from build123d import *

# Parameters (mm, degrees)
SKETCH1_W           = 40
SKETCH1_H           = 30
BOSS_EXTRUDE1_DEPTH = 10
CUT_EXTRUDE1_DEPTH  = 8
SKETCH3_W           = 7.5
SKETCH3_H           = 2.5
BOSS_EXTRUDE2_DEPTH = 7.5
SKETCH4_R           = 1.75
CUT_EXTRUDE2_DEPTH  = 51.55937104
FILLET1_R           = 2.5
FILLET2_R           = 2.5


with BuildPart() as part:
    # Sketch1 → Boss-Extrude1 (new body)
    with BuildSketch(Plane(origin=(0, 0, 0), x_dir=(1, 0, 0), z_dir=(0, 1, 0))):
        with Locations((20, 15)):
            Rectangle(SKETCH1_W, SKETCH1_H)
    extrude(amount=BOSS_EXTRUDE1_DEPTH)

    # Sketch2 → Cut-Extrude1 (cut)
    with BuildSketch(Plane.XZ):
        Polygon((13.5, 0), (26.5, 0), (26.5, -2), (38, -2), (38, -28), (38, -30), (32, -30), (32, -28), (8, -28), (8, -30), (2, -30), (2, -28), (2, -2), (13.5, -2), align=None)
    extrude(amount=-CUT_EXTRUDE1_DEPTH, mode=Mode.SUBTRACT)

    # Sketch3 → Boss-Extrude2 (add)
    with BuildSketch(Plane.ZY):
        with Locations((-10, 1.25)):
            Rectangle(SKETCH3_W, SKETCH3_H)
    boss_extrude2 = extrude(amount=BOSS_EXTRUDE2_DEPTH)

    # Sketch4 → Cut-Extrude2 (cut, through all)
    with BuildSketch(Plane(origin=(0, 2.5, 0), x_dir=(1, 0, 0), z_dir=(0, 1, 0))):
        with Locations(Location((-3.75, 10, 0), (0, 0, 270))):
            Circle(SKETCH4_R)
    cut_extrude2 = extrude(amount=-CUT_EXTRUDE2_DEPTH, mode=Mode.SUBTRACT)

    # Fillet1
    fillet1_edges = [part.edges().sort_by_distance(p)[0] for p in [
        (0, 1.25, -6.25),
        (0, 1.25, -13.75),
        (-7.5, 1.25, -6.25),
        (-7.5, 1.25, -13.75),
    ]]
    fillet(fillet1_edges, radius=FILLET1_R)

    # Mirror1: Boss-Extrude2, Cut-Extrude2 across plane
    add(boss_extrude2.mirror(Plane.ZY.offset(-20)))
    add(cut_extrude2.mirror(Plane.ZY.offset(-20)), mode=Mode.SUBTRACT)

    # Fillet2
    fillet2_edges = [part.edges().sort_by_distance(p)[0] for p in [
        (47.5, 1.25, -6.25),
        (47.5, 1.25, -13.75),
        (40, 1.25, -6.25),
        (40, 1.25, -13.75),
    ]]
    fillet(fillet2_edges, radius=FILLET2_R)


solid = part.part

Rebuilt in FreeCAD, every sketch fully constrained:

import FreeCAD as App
import Part
import Sketcher

V = App.Vector
Q = App.Units.Quantity


def edges_at(feature, points):
    """Names of the edges that pass closest to the given points."""
    edges = feature.Shape.Edges
    near = lambda p: min(range(len(edges)), key=lambda i: edges[i].distToShape(Part.Vertex(*p))[0])
    return sorted({f"Edge{near(p) + 1}" for p in points})


def add_polygon(sketch, points):
    """Adds a closed chain of lines whose ends are joined by coincident constraints."""
    first, n = sketch.GeometryCount, len(points)
    for a, b in zip(points, points[1:] + points[:1]):
        sketch.addGeometry(Part.LineSegment(App.Vector(*a, 0), App.Vector(*b, 0)), False)
    for i in range(n):
        sketch.addConstraint(Sketcher.Constraint("Coincident", first + i, 2, first + (i + 1) % n, 1))

doc = App.newDocument("Part")
body = doc.addObject("PartDesign::Body", "Body")

# Sketch on XZ plane
sketch1 = body.newObject("Sketcher::SketchObject", "Sketch")
sketch1.AttachmentSupport = (doc.getObject("XZ_Plane"), [""])
sketch1.MapMode = "FlatFace"
add_polygon(sketch1, [(0, -30), (0, 0), (40, 0), (40, -30)])  # lines 0-3
sketch1.addConstraint([
    Sketcher.Constraint("Vertical", 0),
    Sketcher.Constraint("Horizontal", 1),
    Sketcher.Constraint("Vertical", 2),
    Sketcher.Constraint("Horizontal", 3),
    Sketcher.Constraint("Coincident", 0, 2, -1, 1),
    Sketcher.Constraint("DistanceX", 1, 1, 1, 2, Q("40 mm")),
    Sketcher.Constraint("DistanceY", 0, 1, 0, 2, Q("30 mm")),
])
pad1 = body.newObject("PartDesign::Pad", "Pad")
pad1.Profile = sketch1
pad1.Length = 10
pad1.Reversed = True

# Sketch on XZ plane
sketch2 = body.newObject("Sketcher::SketchObject", "Sketch001")
sketch2.AttachmentSupport = (doc.getObject("XZ_Plane"), [""])
sketch2.MapMode = "FlatFace"
add_polygon(sketch2, [(26.5, 0), (13.5, 0), (13.5, -2), (2, -2), (2, -30), (8, -30), (8, -28), (32, -28), (32, -30), (38, -30), (38, -2), (26.5, -2)])  # lines 0-11
sketch2.addConstraint([
    Sketcher.Constraint("Horizontal", 0),
    Sketcher.Constraint("Vertical", 1),
    Sketcher.Constraint("Horizontal", 2),
    Sketcher.Constraint("Vertical", 3),
    Sketcher.Constraint("Horizontal", 4),
    Sketcher.Constraint("Vertical", 5),
    Sketcher.Constraint("Horizontal", 6),
    Sketcher.Constraint("Vertical", 7),
    Sketcher.Constraint("Horizontal", 8),
    Sketcher.Constraint("Vertical", 9),
    Sketcher.Constraint("Horizontal", 10),
    Sketcher.Constraint("Vertical", 11),
    Sketcher.Constraint("PointOnObject", 0, 2, -1),
    Sketcher.Constraint("Horizontal", 4, 2, 7, 2),
    Sketcher.Constraint("Horizontal", 2, 2, 9, 2),
    Sketcher.Constraint("Equal", 4, 8),
    Sketcher.Constraint("Equal", 2, 10),
    Sketcher.Constraint("Equal", 1, 5),
    Sketcher.Constraint("DistanceX", 0, 2, 0, 1, Q("13 mm")),
    Sketcher.Constraint("DistanceX", 4, 1, 4, 2, Q("6 mm")),
    Sketcher.Constraint("DistanceX", 6, 1, 6, 2, Q("24 mm")),
    Sketcher.Constraint("DistanceY", 1, 2, 1, 1, Q("2 mm")),
    Sketcher.Constraint("DistanceY", 3, 2, 3, 1, Q("28 mm")),
    Sketcher.Constraint("DistanceX", -1, 1, 2, 2, Q("2 mm")),
])
pocket1 = body.newObject("PartDesign::Pocket", "Pocket")
pocket1.Profile = sketch2
pocket1.Length = 8

# Sketch on YZ plane
sketch3 = body.newObject("Sketcher::SketchObject", "Sketch002")
sketch3.AttachmentSupport = (doc.getObject("YZ_Plane"), [""])
sketch3.MapMode = "FlatFace"
add_polygon(sketch3, [(2.5, -13.75), (0, -13.75), (0, -6.25), (2.5, -6.25)])  # lines 0-3
sketch3.addConstraint([
    Sketcher.Constraint("Horizontal", 0),
    Sketcher.Constraint("Vertical", 1),
    Sketcher.Constraint("Horizontal", 2),
    Sketcher.Constraint("Vertical", 3),
    Sketcher.Constraint("PointOnObject", 0, 2, -2),
    Sketcher.Constraint("DistanceX", 0, 2, 0, 1, Q("2.5 mm")),
    Sketcher.Constraint("DistanceY", 1, 1, 1, 2, Q("7.5 mm")),
    Sketcher.Constraint("DistanceY", 0, 2, -1, 1, Q("13.75 mm")),
])
pad2 = body.newObject("PartDesign::Pad", "Pad001")
pad2.Profile = sketch3
pad2.Length = 7.5
pad2.Reversed = True

# Sketch on XZ plane
sketch4 = body.newObject("Sketcher::SketchObject", "Sketch003")
sketch4.AttachmentSupport = (doc.getObject("XZ_Plane"), [""])
sketch4.MapMode = "FlatFace"
sketch4.AttachmentOffset = App.Placement(V(0, 0, -2.5), App.Rotation())
sketch4.addGeometry(Part.Circle(V(-3.75, -10, 0), V(0, 0, 1), 1.75), False)
sketch4.addConstraint([
    Sketcher.Constraint("Diameter", 0, Q("3.5 mm")),
    Sketcher.Constraint("DistanceY", 0, 3, -1, 1, Q("10 mm")),
    Sketcher.Constraint("DistanceX", 0, 3, -1, 1, Q("3.75 mm")),
])
pocket2 = body.newObject("PartDesign::Pocket", "Pocket001")
pocket2.Profile = sketch4
pocket2.Type = "ThroughAll"
pocket2.Reversed = True
doc.recompute()

fillet = body.newObject("PartDesign::Fillet", "Fillet")
fillet.Base = (pocket2, edges_at(pocket2, [
    (0, 1.25, -6.25),
    (0, 1.25, -13.75),
    (-7.5, 1.25, -6.25),
    (-7.5, 1.25, -13.75),
]))
fillet.Radius = 2.5
doc.recompute()

datumplane = body.newObject("PartDesign::Plane", "DatumPlane")
datumplane.AttachmentSupport = (doc.getObject("YZ_Plane"), [""])
datumplane.MapMode = "FlatFace"
datumplane.AttachmentOffset = App.Placement(V(0, 0, 20), App.Rotation())
mirrored = body.newObject("PartDesign::Mirrored", "Mirrored")
mirrored.Originals = [pad2, pocket2]
mirrored.MirrorPlane = (datumplane, [""])
body.Tip = mirrored
doc.recompute()

fillet2 = body.newObject("PartDesign::Fillet", "Fillet001")
fillet2.Base = (mirrored, edges_at(mirrored, [
    (47.5, 1.25, -6.25),
    (47.5, 1.25, -13.75),
    (40, 1.25, -6.25),
    (40, 1.25, -13.75),
]))
fillet2.Radius = 2.5

doc.recompute()
